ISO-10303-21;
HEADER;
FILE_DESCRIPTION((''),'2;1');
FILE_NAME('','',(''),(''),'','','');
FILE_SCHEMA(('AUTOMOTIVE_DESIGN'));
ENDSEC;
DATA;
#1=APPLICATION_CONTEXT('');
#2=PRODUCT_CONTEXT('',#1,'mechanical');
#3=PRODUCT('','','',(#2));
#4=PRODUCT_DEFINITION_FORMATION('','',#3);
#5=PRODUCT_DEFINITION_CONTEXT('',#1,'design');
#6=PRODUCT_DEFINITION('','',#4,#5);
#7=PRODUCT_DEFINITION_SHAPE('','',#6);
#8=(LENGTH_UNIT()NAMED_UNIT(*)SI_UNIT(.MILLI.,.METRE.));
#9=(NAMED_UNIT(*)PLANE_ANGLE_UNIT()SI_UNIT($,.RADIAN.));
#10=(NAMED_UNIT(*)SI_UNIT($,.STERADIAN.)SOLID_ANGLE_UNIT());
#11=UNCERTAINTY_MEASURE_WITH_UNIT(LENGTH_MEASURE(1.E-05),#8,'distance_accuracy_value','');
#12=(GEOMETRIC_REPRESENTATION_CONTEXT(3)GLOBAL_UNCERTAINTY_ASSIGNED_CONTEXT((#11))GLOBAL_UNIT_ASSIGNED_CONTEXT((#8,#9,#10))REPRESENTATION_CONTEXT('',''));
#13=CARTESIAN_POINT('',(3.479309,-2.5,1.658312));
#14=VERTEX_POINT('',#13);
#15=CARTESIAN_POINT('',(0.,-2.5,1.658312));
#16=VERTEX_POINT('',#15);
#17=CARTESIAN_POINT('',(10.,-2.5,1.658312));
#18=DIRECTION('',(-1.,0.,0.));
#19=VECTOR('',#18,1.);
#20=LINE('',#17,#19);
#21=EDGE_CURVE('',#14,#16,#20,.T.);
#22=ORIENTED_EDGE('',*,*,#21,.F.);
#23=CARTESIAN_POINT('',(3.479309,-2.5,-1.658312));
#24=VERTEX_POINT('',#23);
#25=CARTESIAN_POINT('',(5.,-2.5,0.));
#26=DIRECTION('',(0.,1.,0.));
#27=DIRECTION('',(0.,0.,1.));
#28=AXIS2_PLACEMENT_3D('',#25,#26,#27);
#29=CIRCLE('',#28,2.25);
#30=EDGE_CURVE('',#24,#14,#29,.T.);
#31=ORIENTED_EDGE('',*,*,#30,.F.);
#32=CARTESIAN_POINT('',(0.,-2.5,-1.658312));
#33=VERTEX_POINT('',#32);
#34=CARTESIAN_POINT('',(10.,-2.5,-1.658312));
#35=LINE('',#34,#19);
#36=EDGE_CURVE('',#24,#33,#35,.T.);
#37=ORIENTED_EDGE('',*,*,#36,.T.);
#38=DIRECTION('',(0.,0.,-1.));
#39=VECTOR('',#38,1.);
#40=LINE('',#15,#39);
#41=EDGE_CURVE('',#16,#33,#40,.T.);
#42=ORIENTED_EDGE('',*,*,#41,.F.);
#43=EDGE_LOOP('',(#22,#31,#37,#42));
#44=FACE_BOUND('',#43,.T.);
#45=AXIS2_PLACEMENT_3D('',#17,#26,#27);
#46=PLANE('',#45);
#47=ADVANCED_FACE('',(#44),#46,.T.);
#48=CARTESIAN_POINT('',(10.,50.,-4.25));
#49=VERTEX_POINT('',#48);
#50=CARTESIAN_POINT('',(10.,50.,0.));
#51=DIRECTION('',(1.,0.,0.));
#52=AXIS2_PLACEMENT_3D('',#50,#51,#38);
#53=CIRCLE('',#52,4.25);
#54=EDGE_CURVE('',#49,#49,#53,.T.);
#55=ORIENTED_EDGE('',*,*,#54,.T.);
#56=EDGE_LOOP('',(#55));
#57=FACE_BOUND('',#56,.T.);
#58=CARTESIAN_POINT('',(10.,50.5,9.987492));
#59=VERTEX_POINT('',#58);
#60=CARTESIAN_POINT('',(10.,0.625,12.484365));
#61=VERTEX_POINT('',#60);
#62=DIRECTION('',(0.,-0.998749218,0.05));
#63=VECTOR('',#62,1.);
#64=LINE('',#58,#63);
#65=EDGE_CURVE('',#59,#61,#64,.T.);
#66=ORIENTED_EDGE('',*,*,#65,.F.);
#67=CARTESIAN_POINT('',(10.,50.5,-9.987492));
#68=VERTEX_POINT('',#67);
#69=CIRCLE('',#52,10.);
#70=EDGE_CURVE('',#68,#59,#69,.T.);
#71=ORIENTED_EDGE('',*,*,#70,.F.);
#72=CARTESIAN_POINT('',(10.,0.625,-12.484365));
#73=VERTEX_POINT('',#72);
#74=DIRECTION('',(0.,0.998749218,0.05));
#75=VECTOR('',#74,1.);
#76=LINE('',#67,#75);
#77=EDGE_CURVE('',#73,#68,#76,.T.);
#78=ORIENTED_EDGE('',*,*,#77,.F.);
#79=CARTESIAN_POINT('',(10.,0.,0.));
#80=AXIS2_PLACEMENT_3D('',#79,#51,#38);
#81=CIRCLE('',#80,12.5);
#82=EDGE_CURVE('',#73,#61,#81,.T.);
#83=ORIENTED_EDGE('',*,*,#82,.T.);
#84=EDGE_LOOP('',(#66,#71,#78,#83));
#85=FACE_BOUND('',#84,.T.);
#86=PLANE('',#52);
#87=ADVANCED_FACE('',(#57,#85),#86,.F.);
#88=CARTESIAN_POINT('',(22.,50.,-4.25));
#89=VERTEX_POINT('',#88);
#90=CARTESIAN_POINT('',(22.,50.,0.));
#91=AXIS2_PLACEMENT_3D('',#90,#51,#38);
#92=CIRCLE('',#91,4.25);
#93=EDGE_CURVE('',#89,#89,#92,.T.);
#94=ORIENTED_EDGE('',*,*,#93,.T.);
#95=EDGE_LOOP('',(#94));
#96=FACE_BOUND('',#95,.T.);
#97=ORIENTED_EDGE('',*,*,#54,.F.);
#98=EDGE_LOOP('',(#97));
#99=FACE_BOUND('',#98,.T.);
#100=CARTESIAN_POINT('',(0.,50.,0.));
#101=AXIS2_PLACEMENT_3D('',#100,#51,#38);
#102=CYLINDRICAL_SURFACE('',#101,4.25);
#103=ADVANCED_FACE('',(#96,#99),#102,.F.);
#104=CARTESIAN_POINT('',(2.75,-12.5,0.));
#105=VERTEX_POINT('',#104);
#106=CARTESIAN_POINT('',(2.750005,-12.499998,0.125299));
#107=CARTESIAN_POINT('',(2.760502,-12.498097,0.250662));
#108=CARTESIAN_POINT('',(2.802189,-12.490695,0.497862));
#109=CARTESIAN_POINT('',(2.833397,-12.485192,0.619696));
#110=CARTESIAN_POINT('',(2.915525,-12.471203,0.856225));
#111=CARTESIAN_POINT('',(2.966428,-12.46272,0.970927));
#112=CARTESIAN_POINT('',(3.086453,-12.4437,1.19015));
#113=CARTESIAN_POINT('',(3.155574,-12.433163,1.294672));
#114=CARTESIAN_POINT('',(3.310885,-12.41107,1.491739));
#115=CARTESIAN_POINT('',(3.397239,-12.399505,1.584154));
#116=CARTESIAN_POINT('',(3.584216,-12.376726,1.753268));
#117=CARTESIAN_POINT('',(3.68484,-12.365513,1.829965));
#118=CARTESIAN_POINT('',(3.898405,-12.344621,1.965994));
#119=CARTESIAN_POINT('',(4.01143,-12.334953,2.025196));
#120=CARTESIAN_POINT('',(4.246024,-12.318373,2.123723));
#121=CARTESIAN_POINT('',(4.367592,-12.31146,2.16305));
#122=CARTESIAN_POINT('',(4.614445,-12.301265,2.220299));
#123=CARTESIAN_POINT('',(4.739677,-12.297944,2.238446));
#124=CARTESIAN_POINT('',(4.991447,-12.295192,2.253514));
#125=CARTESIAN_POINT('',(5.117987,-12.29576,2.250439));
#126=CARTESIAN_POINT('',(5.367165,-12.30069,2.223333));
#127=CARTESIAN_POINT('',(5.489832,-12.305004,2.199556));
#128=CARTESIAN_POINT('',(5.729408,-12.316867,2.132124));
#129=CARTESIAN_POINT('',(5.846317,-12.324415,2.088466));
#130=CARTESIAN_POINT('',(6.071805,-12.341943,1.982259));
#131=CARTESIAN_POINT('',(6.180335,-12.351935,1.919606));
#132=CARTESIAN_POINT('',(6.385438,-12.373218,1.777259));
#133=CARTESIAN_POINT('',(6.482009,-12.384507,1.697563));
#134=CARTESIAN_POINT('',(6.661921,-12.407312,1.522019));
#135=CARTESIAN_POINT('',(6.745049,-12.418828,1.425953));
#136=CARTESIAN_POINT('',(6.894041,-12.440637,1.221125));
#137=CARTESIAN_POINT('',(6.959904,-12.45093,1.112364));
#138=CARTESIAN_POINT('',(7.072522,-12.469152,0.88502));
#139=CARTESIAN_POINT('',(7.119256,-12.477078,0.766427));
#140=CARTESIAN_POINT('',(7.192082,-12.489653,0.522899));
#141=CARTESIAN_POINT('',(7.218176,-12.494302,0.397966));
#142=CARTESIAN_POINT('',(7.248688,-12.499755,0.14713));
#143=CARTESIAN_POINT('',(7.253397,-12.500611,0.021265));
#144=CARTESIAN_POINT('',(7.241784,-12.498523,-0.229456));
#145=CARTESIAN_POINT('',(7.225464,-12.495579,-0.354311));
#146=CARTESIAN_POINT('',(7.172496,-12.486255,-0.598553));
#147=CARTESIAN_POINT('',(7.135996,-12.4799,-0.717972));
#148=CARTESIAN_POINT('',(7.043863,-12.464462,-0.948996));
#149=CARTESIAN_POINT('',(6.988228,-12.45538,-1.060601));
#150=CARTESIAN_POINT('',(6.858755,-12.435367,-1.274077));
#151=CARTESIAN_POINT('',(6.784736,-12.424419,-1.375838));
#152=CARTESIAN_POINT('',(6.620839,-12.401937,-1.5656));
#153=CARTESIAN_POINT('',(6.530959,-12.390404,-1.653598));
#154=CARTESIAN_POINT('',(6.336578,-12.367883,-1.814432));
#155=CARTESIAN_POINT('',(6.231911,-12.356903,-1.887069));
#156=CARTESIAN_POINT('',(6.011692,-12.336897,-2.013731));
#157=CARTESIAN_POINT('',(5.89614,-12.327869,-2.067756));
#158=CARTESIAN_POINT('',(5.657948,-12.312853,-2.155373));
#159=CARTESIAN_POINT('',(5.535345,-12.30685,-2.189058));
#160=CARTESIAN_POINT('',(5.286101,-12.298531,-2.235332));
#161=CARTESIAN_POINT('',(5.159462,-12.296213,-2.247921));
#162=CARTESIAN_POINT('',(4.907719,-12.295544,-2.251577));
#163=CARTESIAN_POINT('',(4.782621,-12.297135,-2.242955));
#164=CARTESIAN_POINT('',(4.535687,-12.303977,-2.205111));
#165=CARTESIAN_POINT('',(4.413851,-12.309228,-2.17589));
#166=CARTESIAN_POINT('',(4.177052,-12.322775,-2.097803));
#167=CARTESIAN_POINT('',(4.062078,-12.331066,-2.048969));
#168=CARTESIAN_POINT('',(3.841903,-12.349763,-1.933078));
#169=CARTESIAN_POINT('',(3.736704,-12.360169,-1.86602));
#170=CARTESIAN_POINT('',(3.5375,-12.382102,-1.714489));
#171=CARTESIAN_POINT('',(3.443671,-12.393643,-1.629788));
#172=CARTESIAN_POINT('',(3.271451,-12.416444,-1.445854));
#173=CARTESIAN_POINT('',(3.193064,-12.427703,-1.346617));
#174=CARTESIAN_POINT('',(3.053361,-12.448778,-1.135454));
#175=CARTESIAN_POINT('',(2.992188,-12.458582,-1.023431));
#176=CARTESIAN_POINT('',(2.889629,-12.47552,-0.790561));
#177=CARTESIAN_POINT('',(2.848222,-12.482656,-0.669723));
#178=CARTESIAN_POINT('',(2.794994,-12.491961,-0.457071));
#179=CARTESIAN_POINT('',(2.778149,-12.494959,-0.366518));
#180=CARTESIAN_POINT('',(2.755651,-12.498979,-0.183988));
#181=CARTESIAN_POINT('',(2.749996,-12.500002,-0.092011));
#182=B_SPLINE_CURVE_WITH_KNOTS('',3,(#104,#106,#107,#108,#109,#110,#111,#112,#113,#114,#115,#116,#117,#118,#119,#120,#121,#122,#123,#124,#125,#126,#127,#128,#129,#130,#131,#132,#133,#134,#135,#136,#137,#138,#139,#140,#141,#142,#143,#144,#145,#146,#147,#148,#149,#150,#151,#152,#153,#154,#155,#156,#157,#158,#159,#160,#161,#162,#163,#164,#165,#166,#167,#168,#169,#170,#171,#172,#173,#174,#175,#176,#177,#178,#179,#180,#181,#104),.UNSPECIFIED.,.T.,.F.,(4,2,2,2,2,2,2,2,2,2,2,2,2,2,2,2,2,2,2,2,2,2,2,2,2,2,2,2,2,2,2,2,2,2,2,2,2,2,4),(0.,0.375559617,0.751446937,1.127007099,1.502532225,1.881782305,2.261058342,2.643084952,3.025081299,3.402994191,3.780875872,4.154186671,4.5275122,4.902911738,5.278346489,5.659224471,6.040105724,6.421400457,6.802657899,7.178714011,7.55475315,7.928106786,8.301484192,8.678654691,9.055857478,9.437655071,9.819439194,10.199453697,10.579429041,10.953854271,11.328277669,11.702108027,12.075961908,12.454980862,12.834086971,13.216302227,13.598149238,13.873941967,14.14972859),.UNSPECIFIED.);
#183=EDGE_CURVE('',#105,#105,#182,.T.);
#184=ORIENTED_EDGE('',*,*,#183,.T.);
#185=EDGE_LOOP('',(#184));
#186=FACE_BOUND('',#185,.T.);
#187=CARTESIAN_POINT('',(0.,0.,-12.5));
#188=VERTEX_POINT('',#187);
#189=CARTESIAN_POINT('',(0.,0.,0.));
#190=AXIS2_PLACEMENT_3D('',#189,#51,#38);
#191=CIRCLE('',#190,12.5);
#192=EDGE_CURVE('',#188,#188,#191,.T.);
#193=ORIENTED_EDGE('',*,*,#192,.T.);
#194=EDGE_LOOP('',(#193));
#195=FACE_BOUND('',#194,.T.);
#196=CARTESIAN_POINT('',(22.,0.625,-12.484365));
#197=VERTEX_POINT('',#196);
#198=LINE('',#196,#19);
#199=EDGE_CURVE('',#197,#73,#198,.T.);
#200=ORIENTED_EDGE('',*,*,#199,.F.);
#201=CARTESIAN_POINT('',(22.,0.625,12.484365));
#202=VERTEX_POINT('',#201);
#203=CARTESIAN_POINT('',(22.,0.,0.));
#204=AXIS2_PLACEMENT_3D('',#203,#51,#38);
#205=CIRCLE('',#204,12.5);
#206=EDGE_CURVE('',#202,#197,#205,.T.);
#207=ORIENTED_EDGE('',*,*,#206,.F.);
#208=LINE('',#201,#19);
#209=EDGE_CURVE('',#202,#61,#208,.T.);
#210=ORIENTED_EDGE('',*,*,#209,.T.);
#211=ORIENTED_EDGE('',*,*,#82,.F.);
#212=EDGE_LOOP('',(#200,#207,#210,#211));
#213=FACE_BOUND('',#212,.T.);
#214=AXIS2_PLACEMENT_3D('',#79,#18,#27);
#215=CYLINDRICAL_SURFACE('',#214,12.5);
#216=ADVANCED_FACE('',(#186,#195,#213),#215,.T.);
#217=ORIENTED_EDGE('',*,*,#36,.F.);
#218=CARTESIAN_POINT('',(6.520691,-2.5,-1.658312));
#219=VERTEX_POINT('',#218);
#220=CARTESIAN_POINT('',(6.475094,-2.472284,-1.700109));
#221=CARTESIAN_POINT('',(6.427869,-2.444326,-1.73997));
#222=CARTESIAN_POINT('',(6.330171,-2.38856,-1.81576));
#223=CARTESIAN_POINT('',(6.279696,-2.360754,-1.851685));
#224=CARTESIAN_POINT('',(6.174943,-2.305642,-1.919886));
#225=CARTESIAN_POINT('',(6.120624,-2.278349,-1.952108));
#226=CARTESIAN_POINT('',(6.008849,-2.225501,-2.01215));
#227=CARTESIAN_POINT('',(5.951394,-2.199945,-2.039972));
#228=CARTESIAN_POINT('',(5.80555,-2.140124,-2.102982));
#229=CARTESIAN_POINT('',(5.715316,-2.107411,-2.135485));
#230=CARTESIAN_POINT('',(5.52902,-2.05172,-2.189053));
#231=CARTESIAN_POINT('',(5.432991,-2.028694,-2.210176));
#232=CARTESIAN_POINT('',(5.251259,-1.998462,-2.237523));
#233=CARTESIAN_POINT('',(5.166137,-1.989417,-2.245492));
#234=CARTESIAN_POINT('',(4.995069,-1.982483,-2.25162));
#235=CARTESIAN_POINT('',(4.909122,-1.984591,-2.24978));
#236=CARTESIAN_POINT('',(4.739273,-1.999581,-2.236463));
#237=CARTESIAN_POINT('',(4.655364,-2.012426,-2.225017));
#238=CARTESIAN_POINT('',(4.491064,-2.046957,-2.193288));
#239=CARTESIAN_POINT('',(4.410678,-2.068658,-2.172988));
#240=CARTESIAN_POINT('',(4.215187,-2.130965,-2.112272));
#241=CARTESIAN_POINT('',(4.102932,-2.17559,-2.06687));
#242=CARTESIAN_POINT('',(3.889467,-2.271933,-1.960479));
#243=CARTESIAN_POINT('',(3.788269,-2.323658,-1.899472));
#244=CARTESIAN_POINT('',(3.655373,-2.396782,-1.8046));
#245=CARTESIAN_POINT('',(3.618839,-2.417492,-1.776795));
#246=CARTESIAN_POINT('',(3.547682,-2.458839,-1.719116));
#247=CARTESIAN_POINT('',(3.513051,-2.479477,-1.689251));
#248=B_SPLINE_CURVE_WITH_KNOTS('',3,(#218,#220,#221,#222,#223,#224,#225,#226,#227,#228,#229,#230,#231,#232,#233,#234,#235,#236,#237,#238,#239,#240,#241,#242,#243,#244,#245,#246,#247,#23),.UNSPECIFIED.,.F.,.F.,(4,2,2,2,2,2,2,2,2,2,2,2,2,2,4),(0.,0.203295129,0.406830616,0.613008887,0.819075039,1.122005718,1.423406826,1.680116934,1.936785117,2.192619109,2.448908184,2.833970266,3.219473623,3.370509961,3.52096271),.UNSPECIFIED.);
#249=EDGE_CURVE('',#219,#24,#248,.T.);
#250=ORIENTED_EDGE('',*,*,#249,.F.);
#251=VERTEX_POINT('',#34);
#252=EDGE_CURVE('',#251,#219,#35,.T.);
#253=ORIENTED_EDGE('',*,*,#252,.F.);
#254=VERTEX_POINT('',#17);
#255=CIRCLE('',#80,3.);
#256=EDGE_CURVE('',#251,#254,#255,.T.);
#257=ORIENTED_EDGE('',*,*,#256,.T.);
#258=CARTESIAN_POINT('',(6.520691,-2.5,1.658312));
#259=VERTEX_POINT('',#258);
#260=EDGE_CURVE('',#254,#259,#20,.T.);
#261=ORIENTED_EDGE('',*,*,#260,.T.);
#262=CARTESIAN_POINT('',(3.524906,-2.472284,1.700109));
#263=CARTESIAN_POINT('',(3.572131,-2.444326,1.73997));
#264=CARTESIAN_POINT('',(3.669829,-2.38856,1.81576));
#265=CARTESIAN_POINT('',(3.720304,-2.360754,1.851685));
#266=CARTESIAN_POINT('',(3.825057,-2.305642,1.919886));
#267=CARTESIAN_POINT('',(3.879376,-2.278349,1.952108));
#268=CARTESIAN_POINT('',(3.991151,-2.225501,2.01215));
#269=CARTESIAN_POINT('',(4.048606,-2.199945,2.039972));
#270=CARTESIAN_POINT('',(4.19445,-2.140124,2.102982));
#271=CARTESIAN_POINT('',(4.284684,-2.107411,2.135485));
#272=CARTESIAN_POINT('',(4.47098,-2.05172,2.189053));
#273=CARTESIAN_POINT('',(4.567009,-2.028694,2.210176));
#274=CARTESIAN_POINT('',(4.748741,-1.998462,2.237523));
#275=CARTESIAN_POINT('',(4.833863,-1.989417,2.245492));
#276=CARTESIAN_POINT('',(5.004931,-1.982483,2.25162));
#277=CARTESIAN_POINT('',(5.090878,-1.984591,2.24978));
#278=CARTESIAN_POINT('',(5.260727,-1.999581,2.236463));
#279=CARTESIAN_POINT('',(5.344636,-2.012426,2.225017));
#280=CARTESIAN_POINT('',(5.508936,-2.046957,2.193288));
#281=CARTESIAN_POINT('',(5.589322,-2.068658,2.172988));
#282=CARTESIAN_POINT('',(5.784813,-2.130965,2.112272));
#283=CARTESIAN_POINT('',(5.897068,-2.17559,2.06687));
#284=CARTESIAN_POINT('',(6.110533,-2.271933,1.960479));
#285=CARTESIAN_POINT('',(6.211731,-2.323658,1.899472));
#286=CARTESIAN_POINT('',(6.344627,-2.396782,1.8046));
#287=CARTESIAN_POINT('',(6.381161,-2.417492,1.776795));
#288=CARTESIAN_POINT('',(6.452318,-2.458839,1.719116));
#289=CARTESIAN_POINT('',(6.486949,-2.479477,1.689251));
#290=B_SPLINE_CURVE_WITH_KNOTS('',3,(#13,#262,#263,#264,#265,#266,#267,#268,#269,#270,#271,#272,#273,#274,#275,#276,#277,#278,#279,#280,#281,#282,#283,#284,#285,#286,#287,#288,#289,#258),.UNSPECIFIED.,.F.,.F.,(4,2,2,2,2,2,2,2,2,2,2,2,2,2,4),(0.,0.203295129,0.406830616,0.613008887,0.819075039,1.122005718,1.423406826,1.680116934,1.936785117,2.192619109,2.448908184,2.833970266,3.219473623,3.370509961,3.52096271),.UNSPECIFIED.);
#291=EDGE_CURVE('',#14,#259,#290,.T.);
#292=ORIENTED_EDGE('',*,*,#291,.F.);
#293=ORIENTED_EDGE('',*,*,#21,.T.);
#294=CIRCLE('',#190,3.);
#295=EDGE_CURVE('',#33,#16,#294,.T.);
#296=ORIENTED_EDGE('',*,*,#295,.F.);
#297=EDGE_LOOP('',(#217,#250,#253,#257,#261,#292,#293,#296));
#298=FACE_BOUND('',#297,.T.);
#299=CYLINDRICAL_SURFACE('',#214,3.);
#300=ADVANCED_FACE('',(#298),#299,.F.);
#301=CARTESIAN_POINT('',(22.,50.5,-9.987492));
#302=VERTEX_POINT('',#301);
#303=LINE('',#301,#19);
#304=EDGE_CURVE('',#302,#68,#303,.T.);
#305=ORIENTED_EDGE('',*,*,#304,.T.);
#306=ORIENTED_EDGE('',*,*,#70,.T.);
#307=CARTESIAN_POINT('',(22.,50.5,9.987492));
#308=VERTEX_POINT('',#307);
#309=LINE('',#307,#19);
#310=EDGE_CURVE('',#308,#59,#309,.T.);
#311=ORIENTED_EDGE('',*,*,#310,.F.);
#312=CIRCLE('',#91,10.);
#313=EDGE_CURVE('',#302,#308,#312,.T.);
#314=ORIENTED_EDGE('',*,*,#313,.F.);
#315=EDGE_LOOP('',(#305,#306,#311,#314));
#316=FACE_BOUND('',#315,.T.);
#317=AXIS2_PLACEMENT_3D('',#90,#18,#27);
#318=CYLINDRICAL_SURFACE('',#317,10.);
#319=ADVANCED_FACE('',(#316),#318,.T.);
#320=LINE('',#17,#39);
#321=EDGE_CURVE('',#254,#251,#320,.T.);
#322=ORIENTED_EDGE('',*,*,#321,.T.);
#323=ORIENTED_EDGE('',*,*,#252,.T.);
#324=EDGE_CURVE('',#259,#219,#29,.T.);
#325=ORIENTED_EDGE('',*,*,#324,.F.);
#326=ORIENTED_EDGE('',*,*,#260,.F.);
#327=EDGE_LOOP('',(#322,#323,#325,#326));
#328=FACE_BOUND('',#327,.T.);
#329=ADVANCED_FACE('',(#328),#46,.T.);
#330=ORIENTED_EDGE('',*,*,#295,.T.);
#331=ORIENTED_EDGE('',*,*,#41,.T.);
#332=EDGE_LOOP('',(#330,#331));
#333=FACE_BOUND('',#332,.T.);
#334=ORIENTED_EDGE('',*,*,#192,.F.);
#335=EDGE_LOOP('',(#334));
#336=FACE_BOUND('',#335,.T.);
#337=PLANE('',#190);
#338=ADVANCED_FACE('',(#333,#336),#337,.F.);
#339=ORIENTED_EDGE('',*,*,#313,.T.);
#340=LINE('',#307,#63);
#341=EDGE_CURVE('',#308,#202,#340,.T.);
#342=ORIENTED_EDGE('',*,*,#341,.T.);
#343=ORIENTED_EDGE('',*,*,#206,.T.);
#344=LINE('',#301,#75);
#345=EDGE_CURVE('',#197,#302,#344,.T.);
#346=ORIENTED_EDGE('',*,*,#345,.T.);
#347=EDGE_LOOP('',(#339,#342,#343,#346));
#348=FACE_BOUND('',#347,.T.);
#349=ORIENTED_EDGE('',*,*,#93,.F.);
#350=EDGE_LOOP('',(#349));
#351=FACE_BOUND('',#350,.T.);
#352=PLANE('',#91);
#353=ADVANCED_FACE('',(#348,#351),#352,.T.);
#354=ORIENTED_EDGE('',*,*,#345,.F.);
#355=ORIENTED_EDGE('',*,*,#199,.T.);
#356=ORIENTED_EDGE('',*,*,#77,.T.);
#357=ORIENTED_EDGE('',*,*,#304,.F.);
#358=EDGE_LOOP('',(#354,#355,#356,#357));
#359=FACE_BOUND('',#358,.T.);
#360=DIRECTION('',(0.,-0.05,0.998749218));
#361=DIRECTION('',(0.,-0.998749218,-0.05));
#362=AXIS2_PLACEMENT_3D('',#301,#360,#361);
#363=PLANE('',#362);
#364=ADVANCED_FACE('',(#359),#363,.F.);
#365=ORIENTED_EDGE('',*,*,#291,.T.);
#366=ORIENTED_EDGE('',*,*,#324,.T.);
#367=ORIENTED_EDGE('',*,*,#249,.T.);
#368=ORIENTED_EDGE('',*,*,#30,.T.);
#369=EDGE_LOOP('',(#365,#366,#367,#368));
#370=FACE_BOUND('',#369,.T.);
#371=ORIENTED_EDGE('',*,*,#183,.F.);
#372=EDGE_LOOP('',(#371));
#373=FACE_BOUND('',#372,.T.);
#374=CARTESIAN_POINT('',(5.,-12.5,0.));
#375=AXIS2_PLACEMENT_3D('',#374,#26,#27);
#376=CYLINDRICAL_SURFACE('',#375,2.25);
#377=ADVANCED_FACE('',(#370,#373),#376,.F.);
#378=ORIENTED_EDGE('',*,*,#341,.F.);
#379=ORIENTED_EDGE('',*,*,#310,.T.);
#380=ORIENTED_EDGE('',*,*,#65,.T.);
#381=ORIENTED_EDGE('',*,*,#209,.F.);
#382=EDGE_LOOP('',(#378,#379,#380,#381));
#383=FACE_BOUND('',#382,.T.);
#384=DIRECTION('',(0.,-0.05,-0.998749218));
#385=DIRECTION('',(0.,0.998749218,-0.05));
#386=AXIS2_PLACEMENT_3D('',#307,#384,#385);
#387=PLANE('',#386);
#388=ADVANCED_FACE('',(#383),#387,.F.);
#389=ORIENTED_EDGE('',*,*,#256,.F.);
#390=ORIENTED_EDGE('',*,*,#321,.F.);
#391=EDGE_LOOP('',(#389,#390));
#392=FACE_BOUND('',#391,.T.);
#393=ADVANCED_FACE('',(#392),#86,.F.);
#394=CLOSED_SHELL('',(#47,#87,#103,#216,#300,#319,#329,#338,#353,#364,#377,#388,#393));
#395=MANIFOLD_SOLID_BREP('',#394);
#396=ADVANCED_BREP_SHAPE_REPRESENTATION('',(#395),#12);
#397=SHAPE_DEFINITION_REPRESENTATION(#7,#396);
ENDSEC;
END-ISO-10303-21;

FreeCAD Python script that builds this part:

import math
import FreeCAD as App
import Part
import Sketcher

V = App.Vector
Q = App.Units.Quantity

doc = App.newDocument("Part")
body = doc.addObject("PartDesign::Body", "Body")

# Sketch on YZ plane
sketch1 = doc.addObject("Sketcher::SketchObject", "Sketch")
body.addObject(sketch1)
sketch1.AttachmentSupport = (doc.YZ_Plane, [""])
sketch1.MapMode = "FlatFace"
sketch1.addGeometry([
    Part.Circle(V(0, 0, 0), V(0, 0, 1), 12.5),
    Part.LineSegment(V(-2.5, -1.658312, 0), V(-2.5, 1.658312, 0)),
    Part.ArcOfCircle(Part.Circle(V(0, 0, 0), V(0, 0, 1), 3), math.radians(-146.44269), math.radians(146.44269)),
], False)
sketch1.addConstraint([
    Sketcher.Constraint("Coincident", 1, 1, 2, 1),
    Sketcher.Constraint("Coincident", 2, 2, 1, 2),
    Sketcher.Constraint("Vertical", 1),
    Sketcher.Constraint("Coincident", 0, 3, -1, 1),
    Sketcher.Constraint("Coincident", 2, 3, -1, 1),
    Sketcher.Constraint("Diameter", 0, Q("25 mm")),
    Sketcher.Constraint("Radius", 2, Q("3 mm")),
    Sketcher.Constraint("DistanceX", 1, 1, -1, 1, Q("2.5 mm")),
])
pad1 = doc.addObject("PartDesign::Pad", "Pad")
body.addObject(pad1)
pad1.Profile = sketch1
pad1.Length = 10

# Sketch on YZ plane
sketch2 = doc.addObject("Sketcher::SketchObject", "Sketch001")
body.addObject(sketch2)
sketch2.AttachmentSupport = (doc.YZ_Plane, [""])
sketch2.MapMode = "FlatFace"
sketch2.AttachmentOffset = App.Placement(V(0, 0, 10), App.Rotation())
sketch2.addGeometry([
    Part.LineSegment(V(50.5, 9.987492, 0), V(0.625, 12.484365, 0)),
    Part.ArcOfCircle(Part.Circle(V(0, 0, 0), V(0, 0, 1), 12.5), math.radians(87.134016), math.radians(272.865984)),
    Part.LineSegment(V(0.625, -12.484365, 0), V(50.5, -9.987492, 0)),
    Part.ArcOfCircle(Part.Circle(V(50, 0, 0), V(0, 0, 1), 10), math.radians(-87.134016), math.radians(87.134016)),
], False)
sketch2.addConstraint([
    Sketcher.Constraint("Tangent", 0, 2, 1, 1),
    Sketcher.Constraint("Tangent", 1, 2, 2, 1),
    Sketcher.Constraint("Tangent", 2, 2, 3, 1),
    Sketcher.Constraint("Tangent", 3, 2, 0, 1),
    Sketcher.Constraint("Coincident", 1, 3, -1, 1),
    Sketcher.Constraint("PointOnObject", 3, 3, -1),
    Sketcher.Constraint("Radius", 3, Q("10 mm")),
    Sketcher.Constraint("Radius", 1, Q("12.5 mm")),
    Sketcher.Constraint("DistanceX", -1, 1, 3, 3, Q("50 mm")),
])
pad2 = doc.addObject("PartDesign::Pad", "Pad001")
body.addObject(pad2)
pad2.Profile = sketch2
pad2.Length = 12

# Sketch on XZ plane
sketch3 = doc.addObject("Sketcher::SketchObject", "Sketch002")
body.addObject(sketch3)
sketch3.AttachmentSupport = (doc.XZ_Plane, [""])
sketch3.MapMode = "FlatFace"
sketch3.addGeometry(Part.Circle(V(5, 0, 0), V(0, 0, 1), 2.25), False)
sketch3.addConstraint([
    Sketcher.Constraint("PointOnObject", 0, 3, -1),
    Sketcher.Constraint("Diameter", 0, Q("4.5 mm")),
    Sketcher.Constraint("DistanceX", -1, 1, 0, 3, Q("5 mm")),
])
pocket1 = doc.addObject("PartDesign::Pocket", "Pocket")
body.addObject(pocket1)
pocket1.Profile = sketch3
pocket1.Type = "ThroughAll"
pocket1.Reversed = True

# Sketch on YZ plane
sketch4 = doc.addObject("Sketcher::SketchObject", "Sketch003")
body.addObject(sketch4)
sketch4.AttachmentSupport = (doc.YZ_Plane, [""])
sketch4.MapMode = "FlatFace"
sketch4.AttachmentOffset = App.Placement(V(0, 0, 22), App.Rotation())
sketch4.addGeometry(Part.Circle(V(50, 0, 0), V(0, 0, 1), 4.25), False)
sketch4.addConstraint([
    Sketcher.Constraint("PointOnObject", 0, 3, -1),
    Sketcher.Constraint("Diameter", 0, Q("8.5 mm")),
    Sketcher.Constraint("DistanceX", -1, 1, 0, 3, Q("50 mm")),
])
pocket2 = doc.addObject("PartDesign::Pocket", "Pocket001")
body.addObject(pocket2)
pocket2.Profile = sketch4
pocket2.Type = "ThroughAll"

doc.recompute()
